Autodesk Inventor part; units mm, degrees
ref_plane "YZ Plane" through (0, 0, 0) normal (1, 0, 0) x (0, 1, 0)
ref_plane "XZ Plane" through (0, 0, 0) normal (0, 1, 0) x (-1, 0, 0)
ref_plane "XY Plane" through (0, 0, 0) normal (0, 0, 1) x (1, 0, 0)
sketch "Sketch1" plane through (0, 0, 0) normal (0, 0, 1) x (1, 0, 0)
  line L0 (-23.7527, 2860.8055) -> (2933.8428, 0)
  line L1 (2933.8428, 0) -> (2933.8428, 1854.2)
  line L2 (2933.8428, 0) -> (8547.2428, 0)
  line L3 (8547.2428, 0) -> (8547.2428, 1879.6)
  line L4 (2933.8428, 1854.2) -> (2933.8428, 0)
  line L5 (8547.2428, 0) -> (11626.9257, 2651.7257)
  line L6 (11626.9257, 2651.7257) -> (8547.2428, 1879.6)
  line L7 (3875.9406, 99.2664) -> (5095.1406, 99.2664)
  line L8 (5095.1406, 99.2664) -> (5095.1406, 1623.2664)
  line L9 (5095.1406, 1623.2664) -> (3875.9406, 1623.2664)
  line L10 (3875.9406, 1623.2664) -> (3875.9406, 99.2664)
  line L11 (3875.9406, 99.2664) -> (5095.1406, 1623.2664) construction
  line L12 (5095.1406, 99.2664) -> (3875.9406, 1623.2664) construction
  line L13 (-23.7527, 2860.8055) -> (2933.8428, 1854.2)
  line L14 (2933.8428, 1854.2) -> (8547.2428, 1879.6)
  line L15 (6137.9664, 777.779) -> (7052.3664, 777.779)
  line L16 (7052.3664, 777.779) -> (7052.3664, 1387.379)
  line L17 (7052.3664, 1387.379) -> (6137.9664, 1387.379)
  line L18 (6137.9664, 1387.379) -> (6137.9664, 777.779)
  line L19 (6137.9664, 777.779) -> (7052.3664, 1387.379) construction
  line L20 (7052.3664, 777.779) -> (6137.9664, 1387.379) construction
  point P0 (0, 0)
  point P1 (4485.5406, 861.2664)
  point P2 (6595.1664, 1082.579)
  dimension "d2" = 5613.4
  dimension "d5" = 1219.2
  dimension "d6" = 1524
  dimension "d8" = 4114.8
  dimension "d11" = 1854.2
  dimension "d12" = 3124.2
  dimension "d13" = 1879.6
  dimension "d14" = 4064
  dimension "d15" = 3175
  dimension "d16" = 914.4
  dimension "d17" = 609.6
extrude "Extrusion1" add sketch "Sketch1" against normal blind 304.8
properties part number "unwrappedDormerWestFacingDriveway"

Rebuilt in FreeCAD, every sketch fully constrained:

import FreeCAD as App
import Part
import Sketcher
from FreeCAD import Vector
Q = App.Units.Quantity


def add_polygon(sketch, points):
    """Adds a closed chain of lines whose ends are joined by coincident constraints."""
    first, n = sketch.GeometryCount, len(points)
    for a, b in zip(points, points[1:] + points[:1]):
        sketch.addGeometry(Part.LineSegment(App.Vector(*a, 0), App.Vector(*b, 0)), False)
    for i in range(n):
        sketch.addConstraint(Sketcher.Constraint("Coincident", first + i, 2, first + (i + 1) % n, 1))

doc = App.newDocument("Part")
params = doc.addObject("Spreadsheet::Sheet", "Params")
for row, (alias, value) in enumerate([
    ("sketch1_width", "221 in"),
    ("sketch1_width2", "36 in"),
    ("sketch1_width3", "48 in"),
    ("sketch1_height", "24 in"),
    ("sketch1_height2", "60 in"),
    ("pad1_length", "12 in"),
], start=1):
    params.set(f"A{row}", alias)
    params.set(f"B{row}", "=" + value)
    params.setAlias(f"B{row}", alias)

body = doc.addObject("PartDesign::Body", "Body")

# Sketch on XY plane
sketch1 = body.newObject("Sketcher::SketchObject", "Sketch")
sketch1.AttachmentSupport = (doc.getObject("XY_Plane"), [""])
sketch1.MapMode = "FlatFace"
add_polygon(sketch1, [(2934, 1854), (-24, 2861), (2934, 0), (8547, 0), (11627, 2652), (8547, 1880)])  # lines 0-5
add_polygon(sketch1, [(6138, 778), (6138, 1387), (7052, 1387), (7052, 778)])  # lines 6-9
add_polygon(sketch1, [(5095, 99), (3876, 99), (3876, 1623), (5095, 1623)])  # lines 10-13
sketch1.addConstraint([
    Sketcher.Constraint("Horizontal", 2),
    Sketcher.Constraint("Vertical", 6),
    Sketcher.Constraint("Horizontal", 7),
    Sketcher.Constraint("Vertical", 8),
    Sketcher.Constraint("Horizontal", 9),
    Sketcher.Constraint("Horizontal", 10),
    Sketcher.Constraint("Vertical", 11),
    Sketcher.Constraint("Horizontal", 12),
    Sketcher.Constraint("Vertical", 13),
    Sketcher.Constraint("PointOnObject", 1, 2, -1),
    Sketcher.Constraint("Vertical", 2, 2, 4, 2),
    Sketcher.Constraint("Vertical", 1, 2, 5, 2),
    Sketcher.Constraint("DistanceX", 2, 1, 2, 2, Q("221 in")),
    Sketcher.Constraint("DistanceX", 7, 1, 7, 2, Q("36 in")),
    Sketcher.Constraint("DistanceX", 10, 2, 10, 1, Q("48 in")),
    Sketcher.Constraint("DistanceY", 6, 1, 6, 2, Q("24 in")),
    Sketcher.Constraint("DistanceY", 11, 1, 11, 2, Q("60 in")),
    Sketcher.Constraint("Distance", 0, Q("123 in")),
    Sketcher.Constraint("Distance", 1, Q("162 in")),
    Sketcher.Constraint("Distance", 3, Q("160 in")),
    Sketcher.Constraint("Distance", 4, Q("125 in")),
    Sketcher.Constraint("DistanceY", -1, 1, 4, 2, Q("74 in")),
    Sketcher.Constraint("DistanceY", -1, 1, 5, 2, Q("73 in")),
    Sketcher.Constraint("DistanceX", 6, 2, 4, 2, Q("94.8534 in")),
    Sketcher.Constraint("DistanceY", 10, 2, 9, 2, Q("26.7131 in")),
    Sketcher.Constraint("DistanceX", 0, 2, -1, 1, 23.7527),
    Sketcher.Constraint("DistanceY", -1, 1, 6, 2, 1387.379),
    Sketcher.Constraint("DistanceX", -1, 1, 10, 2, 3875.9406),
])
sketch1.setExpression("Constraints[26]", "Params.sketch1_width")
sketch1.setExpression("Constraints[27]", "Params.sketch1_width2")
sketch1.setExpression("Constraints[28]", "Params.sketch1_width3")
sketch1.setExpression("Constraints[29]", "Params.sketch1_height")
sketch1.setExpression("Constraints[30]", "Params.sketch1_height2")
pad1 = body.newObject("PartDesign::Pad", "Pad")
pad1.Profile = sketch1
pad1.setExpression("Length", "Params.pad1_length")
pad1.Reversed = True

doc.recompute()
